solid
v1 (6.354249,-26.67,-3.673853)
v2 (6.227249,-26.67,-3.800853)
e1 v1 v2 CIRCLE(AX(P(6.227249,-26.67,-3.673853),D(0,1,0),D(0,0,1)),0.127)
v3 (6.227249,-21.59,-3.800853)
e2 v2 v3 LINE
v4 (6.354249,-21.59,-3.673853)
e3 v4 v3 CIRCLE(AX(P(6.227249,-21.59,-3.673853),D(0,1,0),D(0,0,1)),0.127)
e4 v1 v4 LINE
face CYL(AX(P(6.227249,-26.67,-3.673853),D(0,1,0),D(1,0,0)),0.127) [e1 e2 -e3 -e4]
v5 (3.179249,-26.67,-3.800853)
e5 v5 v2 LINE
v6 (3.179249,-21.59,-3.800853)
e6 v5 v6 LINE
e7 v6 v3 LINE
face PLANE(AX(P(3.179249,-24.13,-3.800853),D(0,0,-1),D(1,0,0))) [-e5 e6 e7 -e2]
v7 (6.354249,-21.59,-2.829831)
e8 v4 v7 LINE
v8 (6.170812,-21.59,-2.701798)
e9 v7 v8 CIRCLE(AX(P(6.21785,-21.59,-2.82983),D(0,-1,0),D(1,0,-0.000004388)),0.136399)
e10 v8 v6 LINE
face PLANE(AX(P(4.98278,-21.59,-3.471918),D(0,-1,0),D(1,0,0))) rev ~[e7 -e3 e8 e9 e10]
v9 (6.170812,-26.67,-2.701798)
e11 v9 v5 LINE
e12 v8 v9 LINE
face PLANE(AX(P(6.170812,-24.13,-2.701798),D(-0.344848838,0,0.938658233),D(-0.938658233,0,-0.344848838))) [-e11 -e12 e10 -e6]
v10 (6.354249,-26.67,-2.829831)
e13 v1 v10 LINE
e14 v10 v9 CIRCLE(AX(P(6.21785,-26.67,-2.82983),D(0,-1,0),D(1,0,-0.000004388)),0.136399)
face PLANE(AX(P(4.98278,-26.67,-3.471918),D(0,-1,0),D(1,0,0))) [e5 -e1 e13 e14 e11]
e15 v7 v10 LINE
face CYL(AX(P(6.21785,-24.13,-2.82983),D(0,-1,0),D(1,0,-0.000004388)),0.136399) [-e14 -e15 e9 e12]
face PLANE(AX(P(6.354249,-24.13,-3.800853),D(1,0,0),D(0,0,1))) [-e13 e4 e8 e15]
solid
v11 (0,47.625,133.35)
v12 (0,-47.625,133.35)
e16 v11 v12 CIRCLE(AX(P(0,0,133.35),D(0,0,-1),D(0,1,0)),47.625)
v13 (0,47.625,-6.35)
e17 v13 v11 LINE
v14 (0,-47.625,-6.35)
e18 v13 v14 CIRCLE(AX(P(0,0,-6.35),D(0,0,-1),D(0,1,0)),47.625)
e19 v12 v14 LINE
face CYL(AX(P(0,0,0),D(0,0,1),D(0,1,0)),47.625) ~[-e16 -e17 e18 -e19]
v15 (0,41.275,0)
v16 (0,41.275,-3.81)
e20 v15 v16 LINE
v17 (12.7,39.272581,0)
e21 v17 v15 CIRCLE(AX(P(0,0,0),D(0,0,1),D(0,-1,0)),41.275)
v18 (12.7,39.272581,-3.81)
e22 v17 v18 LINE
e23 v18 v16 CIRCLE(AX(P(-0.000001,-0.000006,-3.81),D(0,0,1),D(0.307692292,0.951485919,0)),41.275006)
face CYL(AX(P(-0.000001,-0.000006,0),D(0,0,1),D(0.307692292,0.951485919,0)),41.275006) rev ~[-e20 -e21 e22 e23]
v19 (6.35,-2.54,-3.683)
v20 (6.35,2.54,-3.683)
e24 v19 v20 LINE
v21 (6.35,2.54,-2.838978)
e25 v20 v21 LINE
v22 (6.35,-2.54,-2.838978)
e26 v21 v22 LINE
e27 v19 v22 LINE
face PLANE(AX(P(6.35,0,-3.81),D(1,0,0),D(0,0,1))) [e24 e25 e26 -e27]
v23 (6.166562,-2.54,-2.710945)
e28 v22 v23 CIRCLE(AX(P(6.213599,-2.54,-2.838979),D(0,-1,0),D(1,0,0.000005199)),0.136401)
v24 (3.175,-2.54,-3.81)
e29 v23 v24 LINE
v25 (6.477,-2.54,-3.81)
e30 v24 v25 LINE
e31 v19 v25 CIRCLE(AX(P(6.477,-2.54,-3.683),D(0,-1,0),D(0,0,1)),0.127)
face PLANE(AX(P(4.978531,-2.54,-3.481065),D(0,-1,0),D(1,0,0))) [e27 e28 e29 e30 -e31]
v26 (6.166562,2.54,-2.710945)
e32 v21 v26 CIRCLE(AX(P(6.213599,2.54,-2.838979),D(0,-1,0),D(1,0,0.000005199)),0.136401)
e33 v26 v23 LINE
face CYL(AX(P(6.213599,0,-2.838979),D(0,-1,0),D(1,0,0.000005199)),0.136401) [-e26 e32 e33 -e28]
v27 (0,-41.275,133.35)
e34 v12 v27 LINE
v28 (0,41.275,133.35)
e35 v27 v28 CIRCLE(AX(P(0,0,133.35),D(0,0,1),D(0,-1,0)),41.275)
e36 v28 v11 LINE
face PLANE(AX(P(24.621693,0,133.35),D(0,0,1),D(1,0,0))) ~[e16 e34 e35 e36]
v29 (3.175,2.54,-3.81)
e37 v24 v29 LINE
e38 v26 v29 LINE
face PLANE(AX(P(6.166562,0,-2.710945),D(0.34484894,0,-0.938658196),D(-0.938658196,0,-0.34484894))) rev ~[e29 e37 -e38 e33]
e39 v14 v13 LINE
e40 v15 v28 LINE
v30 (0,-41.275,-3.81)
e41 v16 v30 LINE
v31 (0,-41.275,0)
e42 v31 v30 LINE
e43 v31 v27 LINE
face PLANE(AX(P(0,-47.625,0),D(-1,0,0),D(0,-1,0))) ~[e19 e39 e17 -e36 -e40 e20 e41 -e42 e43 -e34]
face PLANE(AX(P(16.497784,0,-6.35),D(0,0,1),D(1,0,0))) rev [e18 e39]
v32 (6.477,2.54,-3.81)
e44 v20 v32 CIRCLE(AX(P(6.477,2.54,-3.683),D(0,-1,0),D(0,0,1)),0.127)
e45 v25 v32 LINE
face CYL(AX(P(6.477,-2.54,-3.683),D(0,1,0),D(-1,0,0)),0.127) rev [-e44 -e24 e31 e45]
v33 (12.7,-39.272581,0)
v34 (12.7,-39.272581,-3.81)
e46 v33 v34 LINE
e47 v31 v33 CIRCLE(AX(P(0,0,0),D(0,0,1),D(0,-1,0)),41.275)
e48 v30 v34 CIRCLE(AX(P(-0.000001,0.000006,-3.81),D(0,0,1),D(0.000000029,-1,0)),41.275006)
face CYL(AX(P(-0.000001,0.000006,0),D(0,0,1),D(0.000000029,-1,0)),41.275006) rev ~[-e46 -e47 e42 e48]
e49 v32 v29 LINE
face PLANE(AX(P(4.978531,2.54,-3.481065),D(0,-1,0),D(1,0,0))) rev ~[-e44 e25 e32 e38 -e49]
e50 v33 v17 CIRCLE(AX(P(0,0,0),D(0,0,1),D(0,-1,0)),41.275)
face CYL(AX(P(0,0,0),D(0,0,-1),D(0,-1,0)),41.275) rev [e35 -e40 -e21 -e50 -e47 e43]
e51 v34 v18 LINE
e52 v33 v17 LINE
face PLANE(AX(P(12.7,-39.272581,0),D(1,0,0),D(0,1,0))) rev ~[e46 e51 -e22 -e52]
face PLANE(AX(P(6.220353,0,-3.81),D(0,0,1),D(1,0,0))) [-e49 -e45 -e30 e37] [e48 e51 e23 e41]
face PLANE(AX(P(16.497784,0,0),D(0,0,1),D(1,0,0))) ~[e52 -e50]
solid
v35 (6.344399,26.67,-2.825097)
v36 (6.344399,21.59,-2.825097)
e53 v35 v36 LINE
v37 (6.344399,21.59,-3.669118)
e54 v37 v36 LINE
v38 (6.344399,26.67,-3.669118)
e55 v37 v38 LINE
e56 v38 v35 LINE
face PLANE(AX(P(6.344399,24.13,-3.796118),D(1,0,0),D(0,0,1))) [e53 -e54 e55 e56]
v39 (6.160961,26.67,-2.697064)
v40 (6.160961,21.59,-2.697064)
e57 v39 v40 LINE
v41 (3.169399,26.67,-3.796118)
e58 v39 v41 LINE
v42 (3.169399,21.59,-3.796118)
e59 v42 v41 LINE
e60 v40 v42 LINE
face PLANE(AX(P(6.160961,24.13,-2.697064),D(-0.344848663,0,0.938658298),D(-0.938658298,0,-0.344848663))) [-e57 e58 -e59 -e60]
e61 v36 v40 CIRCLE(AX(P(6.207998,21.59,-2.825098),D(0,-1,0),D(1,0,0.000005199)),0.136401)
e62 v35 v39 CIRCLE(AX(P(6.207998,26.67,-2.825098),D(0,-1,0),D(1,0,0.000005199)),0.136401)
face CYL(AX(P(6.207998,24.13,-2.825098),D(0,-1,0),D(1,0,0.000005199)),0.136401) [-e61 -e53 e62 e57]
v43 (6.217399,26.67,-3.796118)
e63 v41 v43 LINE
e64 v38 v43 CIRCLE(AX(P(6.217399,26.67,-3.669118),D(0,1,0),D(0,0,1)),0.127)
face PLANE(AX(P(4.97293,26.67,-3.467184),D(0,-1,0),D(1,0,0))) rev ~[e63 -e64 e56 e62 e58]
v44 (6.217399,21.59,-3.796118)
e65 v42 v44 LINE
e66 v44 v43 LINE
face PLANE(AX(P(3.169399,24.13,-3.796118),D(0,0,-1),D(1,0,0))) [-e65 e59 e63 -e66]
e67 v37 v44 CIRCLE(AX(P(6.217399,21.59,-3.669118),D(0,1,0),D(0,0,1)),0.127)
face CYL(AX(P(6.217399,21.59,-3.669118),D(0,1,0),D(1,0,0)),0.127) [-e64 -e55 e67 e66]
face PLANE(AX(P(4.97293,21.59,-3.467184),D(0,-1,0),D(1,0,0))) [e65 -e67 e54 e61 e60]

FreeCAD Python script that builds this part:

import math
import FreeCAD as App
import Part
import Sketcher
from FreeCAD import Vector
Q = App.Units.Quantity


def edges_at(feature, points):
    """Names of the edges that pass closest to the given points."""
    edges = feature.Shape.Edges
    near = lambda p: min(range(len(edges)), key=lambda i: edges[i].distToShape(Part.Vertex(*p))[0])
    return sorted({f"Edge{near(p) + 1}" for p in points})

doc = App.newDocument("Part")
body = doc.addObject("PartDesign::Body", "Body")

sketch1 = body.newObject("Sketcher::SketchObject", "Sketch")
sketch1.AttachmentSupport = (doc.getObject("XY_Plane"), [""])
sketch1.MapMode = "FlatFace"
sketch1.addGeometry([
    Part.LineSegment(Vector(0, 41, 0), Vector(0, 48, 0)),
    Part.ArcOfCircle(Part.Circle(Vector(0, 0, 0), Vector(0, 0, 1), 48), math.radians(90), math.radians(270)),
    Part.LineSegment(Vector(0, -48, 0), Vector(0, -41, 0)),
    Part.ArcOfCircle(Part.Circle(Vector(0, 0, 0), Vector(0, 0, 1), 41), math.radians(90), math.radians(270)),
], False)
sketch1.addConstraint([
    Sketcher.Constraint("Coincident", 0, 2, 1, 1),
    Sketcher.Constraint("Coincident", 1, 2, 2, 1),
    Sketcher.Constraint("Coincident", 2, 2, 3, 2),
    Sketcher.Constraint("Coincident", 3, 1, 0, 1),
    Sketcher.Constraint("Vertical", 0),
    Sketcher.Constraint("Vertical", 2),
    Sketcher.Constraint("Coincident", 1, 3, -1, 1),
    Sketcher.Constraint("Coincident", 3, 3, -1, 1),
    Sketcher.Constraint("PointOnObject", 0, 2, -2),
    Sketcher.Constraint("PointOnObject", 1, 2, -2),
    Sketcher.Constraint("Radius", 1, Q("1.875 in")),
    Sketcher.Constraint("Radius", 3, Q("1.625 in")),
])
pad1 = body.newObject("PartDesign::Pad", "Pad")
pad1.Profile = sketch1
pad1.Length = Q("5.25 in")

sketch2 = body.newObject("Sketcher::SketchObject", "Sketch001")
sketch2.AttachmentSupport = (doc.getObject("XY_Plane"), [""])
sketch2.MapMode = "FlatFace"
sketch2.addGeometry([
    Part.LineSegment(Vector(0, -48, 0), Vector(0, 48, 0)),
    Part.ArcOfCircle(Part.Circle(Vector(0, 0, 0), Vector(0, 0, 1), 48), math.radians(90), math.radians(270)),
], False)
sketch2.addConstraint([
    Sketcher.Constraint("Coincident", 0, 1, 1, 2),
    Sketcher.Constraint("Coincident", 1, 1, 0, 2),
    Sketcher.Constraint("Vertical", 0),
    Sketcher.Constraint("Coincident", 1, 3, -1, 1),
    Sketcher.Constraint("PointOnObject", 0, 1, -2),
    Sketcher.Constraint("Radius", 1, Q("1.875 in")),
])
pad2 = body.newObject("PartDesign::Pad", "Pad001")
pad2.Profile = sketch2
pad2.Length = Q("0.25 in")
pad2.Reversed = True
body2 = doc.addObject("PartDesign::Body", "Body001")
doc.recompute()

mirroring = doc.addObject("Part::Mirroring", "Mirroring")
mirroring.Source = body
mirroring.Base = Vector(0, 0, 0)
mirroring.Normal = Vector(1, 0, 0)
body2.BaseFeature = mirroring
doc.recompute()

sketch3 = body2.newObject("Sketcher::SketchObject", "Sketch002")
sketch3.AttachmentSupport = (doc.getObject("XY_Plane001"), [""])
sketch3.MapMode = "FlatFace"
sketch3.addGeometry([
    Part.ArcOfCircle(Part.Circle(Vector(0, 0, 0), Vector(0, 0, 1), 41), math.radians(72.08), math.radians(90)),
    Part.LineSegment(Vector(0, 41, 0), Vector(0, -41, 0)),
    Part.ArcOfCircle(Part.Circle(Vector(0, 0, 0), Vector(0, 0, 1), 41), math.radians(-90), math.radians(-72.08)),
    Part.LineSegment(Vector(13, -39, 0), Vector(13, 39, 0)),
], False)
sketch3.addConstraint([
    Sketcher.Constraint("Coincident", 0, 2, 1, 1),
    Sketcher.Constraint("Coincident", 1, 2, 2, 1),
    Sketcher.Constraint("Coincident", 2, 2, 3, 1),
    Sketcher.Constraint("Coincident", 3, 2, 0, 1),
    Sketcher.Constraint("Vertical", 1),
    Sketcher.Constraint("Vertical", 3),
    Sketcher.Constraint("Coincident", 0, 3, -1, 1),
    Sketcher.Constraint("Coincident", 2, 3, -1, 1),
    Sketcher.Constraint("Equal", 0, 2),
    Sketcher.Constraint("PointOnObject", 0, 2, -2),
    Sketcher.Constraint("DistanceY", 1, 2, 1, 1, Q("3.25 in")),
    Sketcher.Constraint("DistanceX", -1, 1, 2, 2, Q("0.5 in")),
])
pocket1 = body2.newObject("PartDesign::Pocket", "Pocket")
pocket1.Profile = sketch3
pocket1.Length = Q("0.15 in")

sketch4 = body2.newObject("Sketcher::SketchObject", "Sketch003")
sketch4.AttachmentSupport = (doc.getObject("XZ_Plane001"), [""])
sketch4.MapMode = "FlatFace"
sketch4.addGeometry([
    Part.LineSegment(Vector(6.35, -3.81, 0), Vector(6.35, -2.84, 0)),
    Part.ArcOfCircle(Part.Circle(Vector(6.21, -2.84, 0), Vector(0, 0, 1), 0.14), math.radians(0), math.radians(110)),
    Part.LineSegment(Vector(6.17, -2.71, 0), Vector(3.17, -3.81, 0)),
    Part.LineSegment(Vector(3.17, -3.81, 0), Vector(6.35, -3.81, 0)),
], False)
sketch4.addConstraint([
    Sketcher.Constraint("Coincident", 0, 2, 1, 1),
    Sketcher.Constraint("Coincident", 1, 2, 2, 1),
    Sketcher.Constraint("Coincident", 2, 2, 3, 1),
    Sketcher.Constraint("Coincident", 3, 2, 0, 1),
    Sketcher.Constraint("Vertical", 0),
    Sketcher.Constraint("Horizontal", 3),
    Sketcher.Constraint("Horizontal", 1, 3, 0, 2),
    Sketcher.Constraint("DistanceX", 3, 1, 3, 2, Q("0.125 in")),
    Sketcher.Constraint("DistanceX", -1, 1, 0, 2, Q("0.25 in")),
    Sketcher.Constraint("DistanceY", 2, 2, -1, 1, Q("0.15 in")),
    Sketcher.Constraint("Radius", 1, Q("0.136401 mm")),
    Sketcher.Constraint("DistanceY", 0, 1, 0, 2, Q("0.971022 mm")),
    Sketcher.Constraint("Distance", 2, Q("3.187062 mm")),
])
pad3 = body2.newObject("PartDesign::Pad", "Pad002")
pad3.Profile = sketch4
pad3.Type = "TwoLengths"
pad3.Length = Q("0.1 in")
pad3.Length2 = Q("0.1 in")
doc.recompute()

fillet = body2.newObject("PartDesign::Fillet", "Fillet")
fillet.Base = (pad3, edges_at(pad3, [(6.35, 0, -3.81)]))
fillet.Radius = Q("0.005 in")
body3 = doc.addObject("PartDesign::Body", "Body002")

sketch5 = body3.newObject("Sketcher::SketchObject", "Sketch004")
sketch5.AttachmentSupport = (doc.getObject("XZ_Plane002"), [""])
sketch5.MapMode = "FlatFace"
sketch5.AttachmentOffset = App.Placement(Vector(0, 0, 0.95 * 25.4), App.Rotation())
sketch5.addGeometry([
    Part.LineSegment(Vector(6.35, -3.8, 0), Vector(6.35, -2.83, 0)),
    Part.ArcOfCircle(Part.Circle(Vector(6.22, -2.83, 0), Vector(0, 0, 1), 0.14), math.radians(0), math.radians(110)),
    Part.LineSegment(Vector(6.17, -2.7, 0), Vector(3.18, -3.8, 0)),
    Part.LineSegment(Vector(3.18, -3.8, 0), Vector(6.35, -3.8, 0)),
], False)
sketch5.addConstraint([
    Sketcher.Constraint("Coincident", 0, 2, 1, 1),
    Sketcher.Constraint("Coincident", 1, 2, 2, 1),
    Sketcher.Constraint("Coincident", 2, 2, 3, 1),
    Sketcher.Constraint("Coincident", 3, 2, 0, 1),
    Sketcher.Constraint("Vertical", 0),
    Sketcher.Constraint("Horizontal", 3),
    Sketcher.Constraint("Horizontal", 1, 3, 0, 2),
    Sketcher.Constraint("DistanceX", 3, 1, 3, 2, Q("0.125 in")),
    Sketcher.Constraint("Radius", 1, Q("0.136399 mm")),
    Sketcher.Constraint("DistanceY", 0, 1, 0, 2, Q("0.971022 mm")),
    Sketcher.Constraint("DistanceX", -1, 1, 1, 3, Q("6.21785 mm")),
    Sketcher.Constraint("DistanceY", 1, 3, -1, 1, Q("2.82983 mm")),
    Sketcher.Constraint("DistanceX", -1, 1, 1, 2, Q("6.170812 mm")),
])
pad4 = body3.newObject("PartDesign::Pad", "Pad003")
pad4.Profile = sketch5
pad4.Type = "TwoLengths"
pad4.Length = Q("0.1 in")
pad4.Length2 = Q("0.1 in")
doc.recompute()

fillet2 = body3.newObject("PartDesign::Fillet", "Fillet001")
fillet2.Base = (pad4, edges_at(pad4, [(6.354, -24.13, -3.801)]))
fillet2.Radius = Q("0.005 in")
body4 = doc.addObject("PartDesign::Body", "Body003")

sketch6 = body4.newObject("Sketcher::SketchObject", "Sketch005")
sketch6.AttachmentSupport = (doc.getObject("XZ_Plane003"), [""])
sketch6.MapMode = "FlatFace"
sketch6.AttachmentOffset = App.Placement(Vector(0, 0, -0.95 * 25.4), App.Rotation())
sketch6.addGeometry([
    Part.LineSegment(Vector(6.34, -3.8, 0), Vector(6.34, -2.83, 0)),
    Part.ArcOfCircle(Part.Circle(Vector(6.21, -2.83, 0), Vector(0, 0, 1), 0.14), math.radians(0), math.radians(110)),
    Part.LineSegment(Vector(6.16, -2.7, 0), Vector(3.17, -3.8, 0)),
    Part.LineSegment(Vector(3.17, -3.8, 0), Vector(6.34, -3.8, 0)),
], False)
sketch6.addConstraint([
    Sketcher.Constraint("Coincident", 0, 2, 1, 1),
    Sketcher.Constraint("Tangent", 1, 2, 2, 1),
    Sketcher.Constraint("Coincident", 2, 2, 3, 1),
    Sketcher.Constraint("Coincident", 3, 2, 0, 1),
    Sketcher.Constraint("Vertical", 0),
    Sketcher.Constraint("Horizontal", 3),
    Sketcher.Constraint("Horizontal", 1, 3, 0, 2),
    Sketcher.Constraint("DistanceX", 3, 1, 3, 2, Q("0.125 in")),
    Sketcher.Constraint("Radius", 1, Q("0.136401 mm")),
    Sketcher.Constraint("DistanceY", 0, 1, 0, 2, Q("0.971021 mm")),
    Sketcher.Constraint("DistanceX", -1, 1, 1, 3, Q("6.207998 mm")),
    Sketcher.Constraint("DistanceY", 1, 3, -1, 1, Q("2.825098 mm")),
])
pad5 = body4.newObject("PartDesign::Pad", "Pad004")
pad5.Profile = sketch6
pad5.Type = "TwoLengths"
pad5.Length = Q("0.1 in")
pad5.Length2 = Q("0.1 in")
doc.recompute()

fillet3 = body4.newObject("PartDesign::Fillet", "Fillet002")
fillet3.Base = (pad5, edges_at(pad5, [(6.344, 24.13, -3.796)]))
fillet3.Radius = Q("0.005 in")
body.Visibility = False
mirroring.Visibility = False

doc.recompute()
